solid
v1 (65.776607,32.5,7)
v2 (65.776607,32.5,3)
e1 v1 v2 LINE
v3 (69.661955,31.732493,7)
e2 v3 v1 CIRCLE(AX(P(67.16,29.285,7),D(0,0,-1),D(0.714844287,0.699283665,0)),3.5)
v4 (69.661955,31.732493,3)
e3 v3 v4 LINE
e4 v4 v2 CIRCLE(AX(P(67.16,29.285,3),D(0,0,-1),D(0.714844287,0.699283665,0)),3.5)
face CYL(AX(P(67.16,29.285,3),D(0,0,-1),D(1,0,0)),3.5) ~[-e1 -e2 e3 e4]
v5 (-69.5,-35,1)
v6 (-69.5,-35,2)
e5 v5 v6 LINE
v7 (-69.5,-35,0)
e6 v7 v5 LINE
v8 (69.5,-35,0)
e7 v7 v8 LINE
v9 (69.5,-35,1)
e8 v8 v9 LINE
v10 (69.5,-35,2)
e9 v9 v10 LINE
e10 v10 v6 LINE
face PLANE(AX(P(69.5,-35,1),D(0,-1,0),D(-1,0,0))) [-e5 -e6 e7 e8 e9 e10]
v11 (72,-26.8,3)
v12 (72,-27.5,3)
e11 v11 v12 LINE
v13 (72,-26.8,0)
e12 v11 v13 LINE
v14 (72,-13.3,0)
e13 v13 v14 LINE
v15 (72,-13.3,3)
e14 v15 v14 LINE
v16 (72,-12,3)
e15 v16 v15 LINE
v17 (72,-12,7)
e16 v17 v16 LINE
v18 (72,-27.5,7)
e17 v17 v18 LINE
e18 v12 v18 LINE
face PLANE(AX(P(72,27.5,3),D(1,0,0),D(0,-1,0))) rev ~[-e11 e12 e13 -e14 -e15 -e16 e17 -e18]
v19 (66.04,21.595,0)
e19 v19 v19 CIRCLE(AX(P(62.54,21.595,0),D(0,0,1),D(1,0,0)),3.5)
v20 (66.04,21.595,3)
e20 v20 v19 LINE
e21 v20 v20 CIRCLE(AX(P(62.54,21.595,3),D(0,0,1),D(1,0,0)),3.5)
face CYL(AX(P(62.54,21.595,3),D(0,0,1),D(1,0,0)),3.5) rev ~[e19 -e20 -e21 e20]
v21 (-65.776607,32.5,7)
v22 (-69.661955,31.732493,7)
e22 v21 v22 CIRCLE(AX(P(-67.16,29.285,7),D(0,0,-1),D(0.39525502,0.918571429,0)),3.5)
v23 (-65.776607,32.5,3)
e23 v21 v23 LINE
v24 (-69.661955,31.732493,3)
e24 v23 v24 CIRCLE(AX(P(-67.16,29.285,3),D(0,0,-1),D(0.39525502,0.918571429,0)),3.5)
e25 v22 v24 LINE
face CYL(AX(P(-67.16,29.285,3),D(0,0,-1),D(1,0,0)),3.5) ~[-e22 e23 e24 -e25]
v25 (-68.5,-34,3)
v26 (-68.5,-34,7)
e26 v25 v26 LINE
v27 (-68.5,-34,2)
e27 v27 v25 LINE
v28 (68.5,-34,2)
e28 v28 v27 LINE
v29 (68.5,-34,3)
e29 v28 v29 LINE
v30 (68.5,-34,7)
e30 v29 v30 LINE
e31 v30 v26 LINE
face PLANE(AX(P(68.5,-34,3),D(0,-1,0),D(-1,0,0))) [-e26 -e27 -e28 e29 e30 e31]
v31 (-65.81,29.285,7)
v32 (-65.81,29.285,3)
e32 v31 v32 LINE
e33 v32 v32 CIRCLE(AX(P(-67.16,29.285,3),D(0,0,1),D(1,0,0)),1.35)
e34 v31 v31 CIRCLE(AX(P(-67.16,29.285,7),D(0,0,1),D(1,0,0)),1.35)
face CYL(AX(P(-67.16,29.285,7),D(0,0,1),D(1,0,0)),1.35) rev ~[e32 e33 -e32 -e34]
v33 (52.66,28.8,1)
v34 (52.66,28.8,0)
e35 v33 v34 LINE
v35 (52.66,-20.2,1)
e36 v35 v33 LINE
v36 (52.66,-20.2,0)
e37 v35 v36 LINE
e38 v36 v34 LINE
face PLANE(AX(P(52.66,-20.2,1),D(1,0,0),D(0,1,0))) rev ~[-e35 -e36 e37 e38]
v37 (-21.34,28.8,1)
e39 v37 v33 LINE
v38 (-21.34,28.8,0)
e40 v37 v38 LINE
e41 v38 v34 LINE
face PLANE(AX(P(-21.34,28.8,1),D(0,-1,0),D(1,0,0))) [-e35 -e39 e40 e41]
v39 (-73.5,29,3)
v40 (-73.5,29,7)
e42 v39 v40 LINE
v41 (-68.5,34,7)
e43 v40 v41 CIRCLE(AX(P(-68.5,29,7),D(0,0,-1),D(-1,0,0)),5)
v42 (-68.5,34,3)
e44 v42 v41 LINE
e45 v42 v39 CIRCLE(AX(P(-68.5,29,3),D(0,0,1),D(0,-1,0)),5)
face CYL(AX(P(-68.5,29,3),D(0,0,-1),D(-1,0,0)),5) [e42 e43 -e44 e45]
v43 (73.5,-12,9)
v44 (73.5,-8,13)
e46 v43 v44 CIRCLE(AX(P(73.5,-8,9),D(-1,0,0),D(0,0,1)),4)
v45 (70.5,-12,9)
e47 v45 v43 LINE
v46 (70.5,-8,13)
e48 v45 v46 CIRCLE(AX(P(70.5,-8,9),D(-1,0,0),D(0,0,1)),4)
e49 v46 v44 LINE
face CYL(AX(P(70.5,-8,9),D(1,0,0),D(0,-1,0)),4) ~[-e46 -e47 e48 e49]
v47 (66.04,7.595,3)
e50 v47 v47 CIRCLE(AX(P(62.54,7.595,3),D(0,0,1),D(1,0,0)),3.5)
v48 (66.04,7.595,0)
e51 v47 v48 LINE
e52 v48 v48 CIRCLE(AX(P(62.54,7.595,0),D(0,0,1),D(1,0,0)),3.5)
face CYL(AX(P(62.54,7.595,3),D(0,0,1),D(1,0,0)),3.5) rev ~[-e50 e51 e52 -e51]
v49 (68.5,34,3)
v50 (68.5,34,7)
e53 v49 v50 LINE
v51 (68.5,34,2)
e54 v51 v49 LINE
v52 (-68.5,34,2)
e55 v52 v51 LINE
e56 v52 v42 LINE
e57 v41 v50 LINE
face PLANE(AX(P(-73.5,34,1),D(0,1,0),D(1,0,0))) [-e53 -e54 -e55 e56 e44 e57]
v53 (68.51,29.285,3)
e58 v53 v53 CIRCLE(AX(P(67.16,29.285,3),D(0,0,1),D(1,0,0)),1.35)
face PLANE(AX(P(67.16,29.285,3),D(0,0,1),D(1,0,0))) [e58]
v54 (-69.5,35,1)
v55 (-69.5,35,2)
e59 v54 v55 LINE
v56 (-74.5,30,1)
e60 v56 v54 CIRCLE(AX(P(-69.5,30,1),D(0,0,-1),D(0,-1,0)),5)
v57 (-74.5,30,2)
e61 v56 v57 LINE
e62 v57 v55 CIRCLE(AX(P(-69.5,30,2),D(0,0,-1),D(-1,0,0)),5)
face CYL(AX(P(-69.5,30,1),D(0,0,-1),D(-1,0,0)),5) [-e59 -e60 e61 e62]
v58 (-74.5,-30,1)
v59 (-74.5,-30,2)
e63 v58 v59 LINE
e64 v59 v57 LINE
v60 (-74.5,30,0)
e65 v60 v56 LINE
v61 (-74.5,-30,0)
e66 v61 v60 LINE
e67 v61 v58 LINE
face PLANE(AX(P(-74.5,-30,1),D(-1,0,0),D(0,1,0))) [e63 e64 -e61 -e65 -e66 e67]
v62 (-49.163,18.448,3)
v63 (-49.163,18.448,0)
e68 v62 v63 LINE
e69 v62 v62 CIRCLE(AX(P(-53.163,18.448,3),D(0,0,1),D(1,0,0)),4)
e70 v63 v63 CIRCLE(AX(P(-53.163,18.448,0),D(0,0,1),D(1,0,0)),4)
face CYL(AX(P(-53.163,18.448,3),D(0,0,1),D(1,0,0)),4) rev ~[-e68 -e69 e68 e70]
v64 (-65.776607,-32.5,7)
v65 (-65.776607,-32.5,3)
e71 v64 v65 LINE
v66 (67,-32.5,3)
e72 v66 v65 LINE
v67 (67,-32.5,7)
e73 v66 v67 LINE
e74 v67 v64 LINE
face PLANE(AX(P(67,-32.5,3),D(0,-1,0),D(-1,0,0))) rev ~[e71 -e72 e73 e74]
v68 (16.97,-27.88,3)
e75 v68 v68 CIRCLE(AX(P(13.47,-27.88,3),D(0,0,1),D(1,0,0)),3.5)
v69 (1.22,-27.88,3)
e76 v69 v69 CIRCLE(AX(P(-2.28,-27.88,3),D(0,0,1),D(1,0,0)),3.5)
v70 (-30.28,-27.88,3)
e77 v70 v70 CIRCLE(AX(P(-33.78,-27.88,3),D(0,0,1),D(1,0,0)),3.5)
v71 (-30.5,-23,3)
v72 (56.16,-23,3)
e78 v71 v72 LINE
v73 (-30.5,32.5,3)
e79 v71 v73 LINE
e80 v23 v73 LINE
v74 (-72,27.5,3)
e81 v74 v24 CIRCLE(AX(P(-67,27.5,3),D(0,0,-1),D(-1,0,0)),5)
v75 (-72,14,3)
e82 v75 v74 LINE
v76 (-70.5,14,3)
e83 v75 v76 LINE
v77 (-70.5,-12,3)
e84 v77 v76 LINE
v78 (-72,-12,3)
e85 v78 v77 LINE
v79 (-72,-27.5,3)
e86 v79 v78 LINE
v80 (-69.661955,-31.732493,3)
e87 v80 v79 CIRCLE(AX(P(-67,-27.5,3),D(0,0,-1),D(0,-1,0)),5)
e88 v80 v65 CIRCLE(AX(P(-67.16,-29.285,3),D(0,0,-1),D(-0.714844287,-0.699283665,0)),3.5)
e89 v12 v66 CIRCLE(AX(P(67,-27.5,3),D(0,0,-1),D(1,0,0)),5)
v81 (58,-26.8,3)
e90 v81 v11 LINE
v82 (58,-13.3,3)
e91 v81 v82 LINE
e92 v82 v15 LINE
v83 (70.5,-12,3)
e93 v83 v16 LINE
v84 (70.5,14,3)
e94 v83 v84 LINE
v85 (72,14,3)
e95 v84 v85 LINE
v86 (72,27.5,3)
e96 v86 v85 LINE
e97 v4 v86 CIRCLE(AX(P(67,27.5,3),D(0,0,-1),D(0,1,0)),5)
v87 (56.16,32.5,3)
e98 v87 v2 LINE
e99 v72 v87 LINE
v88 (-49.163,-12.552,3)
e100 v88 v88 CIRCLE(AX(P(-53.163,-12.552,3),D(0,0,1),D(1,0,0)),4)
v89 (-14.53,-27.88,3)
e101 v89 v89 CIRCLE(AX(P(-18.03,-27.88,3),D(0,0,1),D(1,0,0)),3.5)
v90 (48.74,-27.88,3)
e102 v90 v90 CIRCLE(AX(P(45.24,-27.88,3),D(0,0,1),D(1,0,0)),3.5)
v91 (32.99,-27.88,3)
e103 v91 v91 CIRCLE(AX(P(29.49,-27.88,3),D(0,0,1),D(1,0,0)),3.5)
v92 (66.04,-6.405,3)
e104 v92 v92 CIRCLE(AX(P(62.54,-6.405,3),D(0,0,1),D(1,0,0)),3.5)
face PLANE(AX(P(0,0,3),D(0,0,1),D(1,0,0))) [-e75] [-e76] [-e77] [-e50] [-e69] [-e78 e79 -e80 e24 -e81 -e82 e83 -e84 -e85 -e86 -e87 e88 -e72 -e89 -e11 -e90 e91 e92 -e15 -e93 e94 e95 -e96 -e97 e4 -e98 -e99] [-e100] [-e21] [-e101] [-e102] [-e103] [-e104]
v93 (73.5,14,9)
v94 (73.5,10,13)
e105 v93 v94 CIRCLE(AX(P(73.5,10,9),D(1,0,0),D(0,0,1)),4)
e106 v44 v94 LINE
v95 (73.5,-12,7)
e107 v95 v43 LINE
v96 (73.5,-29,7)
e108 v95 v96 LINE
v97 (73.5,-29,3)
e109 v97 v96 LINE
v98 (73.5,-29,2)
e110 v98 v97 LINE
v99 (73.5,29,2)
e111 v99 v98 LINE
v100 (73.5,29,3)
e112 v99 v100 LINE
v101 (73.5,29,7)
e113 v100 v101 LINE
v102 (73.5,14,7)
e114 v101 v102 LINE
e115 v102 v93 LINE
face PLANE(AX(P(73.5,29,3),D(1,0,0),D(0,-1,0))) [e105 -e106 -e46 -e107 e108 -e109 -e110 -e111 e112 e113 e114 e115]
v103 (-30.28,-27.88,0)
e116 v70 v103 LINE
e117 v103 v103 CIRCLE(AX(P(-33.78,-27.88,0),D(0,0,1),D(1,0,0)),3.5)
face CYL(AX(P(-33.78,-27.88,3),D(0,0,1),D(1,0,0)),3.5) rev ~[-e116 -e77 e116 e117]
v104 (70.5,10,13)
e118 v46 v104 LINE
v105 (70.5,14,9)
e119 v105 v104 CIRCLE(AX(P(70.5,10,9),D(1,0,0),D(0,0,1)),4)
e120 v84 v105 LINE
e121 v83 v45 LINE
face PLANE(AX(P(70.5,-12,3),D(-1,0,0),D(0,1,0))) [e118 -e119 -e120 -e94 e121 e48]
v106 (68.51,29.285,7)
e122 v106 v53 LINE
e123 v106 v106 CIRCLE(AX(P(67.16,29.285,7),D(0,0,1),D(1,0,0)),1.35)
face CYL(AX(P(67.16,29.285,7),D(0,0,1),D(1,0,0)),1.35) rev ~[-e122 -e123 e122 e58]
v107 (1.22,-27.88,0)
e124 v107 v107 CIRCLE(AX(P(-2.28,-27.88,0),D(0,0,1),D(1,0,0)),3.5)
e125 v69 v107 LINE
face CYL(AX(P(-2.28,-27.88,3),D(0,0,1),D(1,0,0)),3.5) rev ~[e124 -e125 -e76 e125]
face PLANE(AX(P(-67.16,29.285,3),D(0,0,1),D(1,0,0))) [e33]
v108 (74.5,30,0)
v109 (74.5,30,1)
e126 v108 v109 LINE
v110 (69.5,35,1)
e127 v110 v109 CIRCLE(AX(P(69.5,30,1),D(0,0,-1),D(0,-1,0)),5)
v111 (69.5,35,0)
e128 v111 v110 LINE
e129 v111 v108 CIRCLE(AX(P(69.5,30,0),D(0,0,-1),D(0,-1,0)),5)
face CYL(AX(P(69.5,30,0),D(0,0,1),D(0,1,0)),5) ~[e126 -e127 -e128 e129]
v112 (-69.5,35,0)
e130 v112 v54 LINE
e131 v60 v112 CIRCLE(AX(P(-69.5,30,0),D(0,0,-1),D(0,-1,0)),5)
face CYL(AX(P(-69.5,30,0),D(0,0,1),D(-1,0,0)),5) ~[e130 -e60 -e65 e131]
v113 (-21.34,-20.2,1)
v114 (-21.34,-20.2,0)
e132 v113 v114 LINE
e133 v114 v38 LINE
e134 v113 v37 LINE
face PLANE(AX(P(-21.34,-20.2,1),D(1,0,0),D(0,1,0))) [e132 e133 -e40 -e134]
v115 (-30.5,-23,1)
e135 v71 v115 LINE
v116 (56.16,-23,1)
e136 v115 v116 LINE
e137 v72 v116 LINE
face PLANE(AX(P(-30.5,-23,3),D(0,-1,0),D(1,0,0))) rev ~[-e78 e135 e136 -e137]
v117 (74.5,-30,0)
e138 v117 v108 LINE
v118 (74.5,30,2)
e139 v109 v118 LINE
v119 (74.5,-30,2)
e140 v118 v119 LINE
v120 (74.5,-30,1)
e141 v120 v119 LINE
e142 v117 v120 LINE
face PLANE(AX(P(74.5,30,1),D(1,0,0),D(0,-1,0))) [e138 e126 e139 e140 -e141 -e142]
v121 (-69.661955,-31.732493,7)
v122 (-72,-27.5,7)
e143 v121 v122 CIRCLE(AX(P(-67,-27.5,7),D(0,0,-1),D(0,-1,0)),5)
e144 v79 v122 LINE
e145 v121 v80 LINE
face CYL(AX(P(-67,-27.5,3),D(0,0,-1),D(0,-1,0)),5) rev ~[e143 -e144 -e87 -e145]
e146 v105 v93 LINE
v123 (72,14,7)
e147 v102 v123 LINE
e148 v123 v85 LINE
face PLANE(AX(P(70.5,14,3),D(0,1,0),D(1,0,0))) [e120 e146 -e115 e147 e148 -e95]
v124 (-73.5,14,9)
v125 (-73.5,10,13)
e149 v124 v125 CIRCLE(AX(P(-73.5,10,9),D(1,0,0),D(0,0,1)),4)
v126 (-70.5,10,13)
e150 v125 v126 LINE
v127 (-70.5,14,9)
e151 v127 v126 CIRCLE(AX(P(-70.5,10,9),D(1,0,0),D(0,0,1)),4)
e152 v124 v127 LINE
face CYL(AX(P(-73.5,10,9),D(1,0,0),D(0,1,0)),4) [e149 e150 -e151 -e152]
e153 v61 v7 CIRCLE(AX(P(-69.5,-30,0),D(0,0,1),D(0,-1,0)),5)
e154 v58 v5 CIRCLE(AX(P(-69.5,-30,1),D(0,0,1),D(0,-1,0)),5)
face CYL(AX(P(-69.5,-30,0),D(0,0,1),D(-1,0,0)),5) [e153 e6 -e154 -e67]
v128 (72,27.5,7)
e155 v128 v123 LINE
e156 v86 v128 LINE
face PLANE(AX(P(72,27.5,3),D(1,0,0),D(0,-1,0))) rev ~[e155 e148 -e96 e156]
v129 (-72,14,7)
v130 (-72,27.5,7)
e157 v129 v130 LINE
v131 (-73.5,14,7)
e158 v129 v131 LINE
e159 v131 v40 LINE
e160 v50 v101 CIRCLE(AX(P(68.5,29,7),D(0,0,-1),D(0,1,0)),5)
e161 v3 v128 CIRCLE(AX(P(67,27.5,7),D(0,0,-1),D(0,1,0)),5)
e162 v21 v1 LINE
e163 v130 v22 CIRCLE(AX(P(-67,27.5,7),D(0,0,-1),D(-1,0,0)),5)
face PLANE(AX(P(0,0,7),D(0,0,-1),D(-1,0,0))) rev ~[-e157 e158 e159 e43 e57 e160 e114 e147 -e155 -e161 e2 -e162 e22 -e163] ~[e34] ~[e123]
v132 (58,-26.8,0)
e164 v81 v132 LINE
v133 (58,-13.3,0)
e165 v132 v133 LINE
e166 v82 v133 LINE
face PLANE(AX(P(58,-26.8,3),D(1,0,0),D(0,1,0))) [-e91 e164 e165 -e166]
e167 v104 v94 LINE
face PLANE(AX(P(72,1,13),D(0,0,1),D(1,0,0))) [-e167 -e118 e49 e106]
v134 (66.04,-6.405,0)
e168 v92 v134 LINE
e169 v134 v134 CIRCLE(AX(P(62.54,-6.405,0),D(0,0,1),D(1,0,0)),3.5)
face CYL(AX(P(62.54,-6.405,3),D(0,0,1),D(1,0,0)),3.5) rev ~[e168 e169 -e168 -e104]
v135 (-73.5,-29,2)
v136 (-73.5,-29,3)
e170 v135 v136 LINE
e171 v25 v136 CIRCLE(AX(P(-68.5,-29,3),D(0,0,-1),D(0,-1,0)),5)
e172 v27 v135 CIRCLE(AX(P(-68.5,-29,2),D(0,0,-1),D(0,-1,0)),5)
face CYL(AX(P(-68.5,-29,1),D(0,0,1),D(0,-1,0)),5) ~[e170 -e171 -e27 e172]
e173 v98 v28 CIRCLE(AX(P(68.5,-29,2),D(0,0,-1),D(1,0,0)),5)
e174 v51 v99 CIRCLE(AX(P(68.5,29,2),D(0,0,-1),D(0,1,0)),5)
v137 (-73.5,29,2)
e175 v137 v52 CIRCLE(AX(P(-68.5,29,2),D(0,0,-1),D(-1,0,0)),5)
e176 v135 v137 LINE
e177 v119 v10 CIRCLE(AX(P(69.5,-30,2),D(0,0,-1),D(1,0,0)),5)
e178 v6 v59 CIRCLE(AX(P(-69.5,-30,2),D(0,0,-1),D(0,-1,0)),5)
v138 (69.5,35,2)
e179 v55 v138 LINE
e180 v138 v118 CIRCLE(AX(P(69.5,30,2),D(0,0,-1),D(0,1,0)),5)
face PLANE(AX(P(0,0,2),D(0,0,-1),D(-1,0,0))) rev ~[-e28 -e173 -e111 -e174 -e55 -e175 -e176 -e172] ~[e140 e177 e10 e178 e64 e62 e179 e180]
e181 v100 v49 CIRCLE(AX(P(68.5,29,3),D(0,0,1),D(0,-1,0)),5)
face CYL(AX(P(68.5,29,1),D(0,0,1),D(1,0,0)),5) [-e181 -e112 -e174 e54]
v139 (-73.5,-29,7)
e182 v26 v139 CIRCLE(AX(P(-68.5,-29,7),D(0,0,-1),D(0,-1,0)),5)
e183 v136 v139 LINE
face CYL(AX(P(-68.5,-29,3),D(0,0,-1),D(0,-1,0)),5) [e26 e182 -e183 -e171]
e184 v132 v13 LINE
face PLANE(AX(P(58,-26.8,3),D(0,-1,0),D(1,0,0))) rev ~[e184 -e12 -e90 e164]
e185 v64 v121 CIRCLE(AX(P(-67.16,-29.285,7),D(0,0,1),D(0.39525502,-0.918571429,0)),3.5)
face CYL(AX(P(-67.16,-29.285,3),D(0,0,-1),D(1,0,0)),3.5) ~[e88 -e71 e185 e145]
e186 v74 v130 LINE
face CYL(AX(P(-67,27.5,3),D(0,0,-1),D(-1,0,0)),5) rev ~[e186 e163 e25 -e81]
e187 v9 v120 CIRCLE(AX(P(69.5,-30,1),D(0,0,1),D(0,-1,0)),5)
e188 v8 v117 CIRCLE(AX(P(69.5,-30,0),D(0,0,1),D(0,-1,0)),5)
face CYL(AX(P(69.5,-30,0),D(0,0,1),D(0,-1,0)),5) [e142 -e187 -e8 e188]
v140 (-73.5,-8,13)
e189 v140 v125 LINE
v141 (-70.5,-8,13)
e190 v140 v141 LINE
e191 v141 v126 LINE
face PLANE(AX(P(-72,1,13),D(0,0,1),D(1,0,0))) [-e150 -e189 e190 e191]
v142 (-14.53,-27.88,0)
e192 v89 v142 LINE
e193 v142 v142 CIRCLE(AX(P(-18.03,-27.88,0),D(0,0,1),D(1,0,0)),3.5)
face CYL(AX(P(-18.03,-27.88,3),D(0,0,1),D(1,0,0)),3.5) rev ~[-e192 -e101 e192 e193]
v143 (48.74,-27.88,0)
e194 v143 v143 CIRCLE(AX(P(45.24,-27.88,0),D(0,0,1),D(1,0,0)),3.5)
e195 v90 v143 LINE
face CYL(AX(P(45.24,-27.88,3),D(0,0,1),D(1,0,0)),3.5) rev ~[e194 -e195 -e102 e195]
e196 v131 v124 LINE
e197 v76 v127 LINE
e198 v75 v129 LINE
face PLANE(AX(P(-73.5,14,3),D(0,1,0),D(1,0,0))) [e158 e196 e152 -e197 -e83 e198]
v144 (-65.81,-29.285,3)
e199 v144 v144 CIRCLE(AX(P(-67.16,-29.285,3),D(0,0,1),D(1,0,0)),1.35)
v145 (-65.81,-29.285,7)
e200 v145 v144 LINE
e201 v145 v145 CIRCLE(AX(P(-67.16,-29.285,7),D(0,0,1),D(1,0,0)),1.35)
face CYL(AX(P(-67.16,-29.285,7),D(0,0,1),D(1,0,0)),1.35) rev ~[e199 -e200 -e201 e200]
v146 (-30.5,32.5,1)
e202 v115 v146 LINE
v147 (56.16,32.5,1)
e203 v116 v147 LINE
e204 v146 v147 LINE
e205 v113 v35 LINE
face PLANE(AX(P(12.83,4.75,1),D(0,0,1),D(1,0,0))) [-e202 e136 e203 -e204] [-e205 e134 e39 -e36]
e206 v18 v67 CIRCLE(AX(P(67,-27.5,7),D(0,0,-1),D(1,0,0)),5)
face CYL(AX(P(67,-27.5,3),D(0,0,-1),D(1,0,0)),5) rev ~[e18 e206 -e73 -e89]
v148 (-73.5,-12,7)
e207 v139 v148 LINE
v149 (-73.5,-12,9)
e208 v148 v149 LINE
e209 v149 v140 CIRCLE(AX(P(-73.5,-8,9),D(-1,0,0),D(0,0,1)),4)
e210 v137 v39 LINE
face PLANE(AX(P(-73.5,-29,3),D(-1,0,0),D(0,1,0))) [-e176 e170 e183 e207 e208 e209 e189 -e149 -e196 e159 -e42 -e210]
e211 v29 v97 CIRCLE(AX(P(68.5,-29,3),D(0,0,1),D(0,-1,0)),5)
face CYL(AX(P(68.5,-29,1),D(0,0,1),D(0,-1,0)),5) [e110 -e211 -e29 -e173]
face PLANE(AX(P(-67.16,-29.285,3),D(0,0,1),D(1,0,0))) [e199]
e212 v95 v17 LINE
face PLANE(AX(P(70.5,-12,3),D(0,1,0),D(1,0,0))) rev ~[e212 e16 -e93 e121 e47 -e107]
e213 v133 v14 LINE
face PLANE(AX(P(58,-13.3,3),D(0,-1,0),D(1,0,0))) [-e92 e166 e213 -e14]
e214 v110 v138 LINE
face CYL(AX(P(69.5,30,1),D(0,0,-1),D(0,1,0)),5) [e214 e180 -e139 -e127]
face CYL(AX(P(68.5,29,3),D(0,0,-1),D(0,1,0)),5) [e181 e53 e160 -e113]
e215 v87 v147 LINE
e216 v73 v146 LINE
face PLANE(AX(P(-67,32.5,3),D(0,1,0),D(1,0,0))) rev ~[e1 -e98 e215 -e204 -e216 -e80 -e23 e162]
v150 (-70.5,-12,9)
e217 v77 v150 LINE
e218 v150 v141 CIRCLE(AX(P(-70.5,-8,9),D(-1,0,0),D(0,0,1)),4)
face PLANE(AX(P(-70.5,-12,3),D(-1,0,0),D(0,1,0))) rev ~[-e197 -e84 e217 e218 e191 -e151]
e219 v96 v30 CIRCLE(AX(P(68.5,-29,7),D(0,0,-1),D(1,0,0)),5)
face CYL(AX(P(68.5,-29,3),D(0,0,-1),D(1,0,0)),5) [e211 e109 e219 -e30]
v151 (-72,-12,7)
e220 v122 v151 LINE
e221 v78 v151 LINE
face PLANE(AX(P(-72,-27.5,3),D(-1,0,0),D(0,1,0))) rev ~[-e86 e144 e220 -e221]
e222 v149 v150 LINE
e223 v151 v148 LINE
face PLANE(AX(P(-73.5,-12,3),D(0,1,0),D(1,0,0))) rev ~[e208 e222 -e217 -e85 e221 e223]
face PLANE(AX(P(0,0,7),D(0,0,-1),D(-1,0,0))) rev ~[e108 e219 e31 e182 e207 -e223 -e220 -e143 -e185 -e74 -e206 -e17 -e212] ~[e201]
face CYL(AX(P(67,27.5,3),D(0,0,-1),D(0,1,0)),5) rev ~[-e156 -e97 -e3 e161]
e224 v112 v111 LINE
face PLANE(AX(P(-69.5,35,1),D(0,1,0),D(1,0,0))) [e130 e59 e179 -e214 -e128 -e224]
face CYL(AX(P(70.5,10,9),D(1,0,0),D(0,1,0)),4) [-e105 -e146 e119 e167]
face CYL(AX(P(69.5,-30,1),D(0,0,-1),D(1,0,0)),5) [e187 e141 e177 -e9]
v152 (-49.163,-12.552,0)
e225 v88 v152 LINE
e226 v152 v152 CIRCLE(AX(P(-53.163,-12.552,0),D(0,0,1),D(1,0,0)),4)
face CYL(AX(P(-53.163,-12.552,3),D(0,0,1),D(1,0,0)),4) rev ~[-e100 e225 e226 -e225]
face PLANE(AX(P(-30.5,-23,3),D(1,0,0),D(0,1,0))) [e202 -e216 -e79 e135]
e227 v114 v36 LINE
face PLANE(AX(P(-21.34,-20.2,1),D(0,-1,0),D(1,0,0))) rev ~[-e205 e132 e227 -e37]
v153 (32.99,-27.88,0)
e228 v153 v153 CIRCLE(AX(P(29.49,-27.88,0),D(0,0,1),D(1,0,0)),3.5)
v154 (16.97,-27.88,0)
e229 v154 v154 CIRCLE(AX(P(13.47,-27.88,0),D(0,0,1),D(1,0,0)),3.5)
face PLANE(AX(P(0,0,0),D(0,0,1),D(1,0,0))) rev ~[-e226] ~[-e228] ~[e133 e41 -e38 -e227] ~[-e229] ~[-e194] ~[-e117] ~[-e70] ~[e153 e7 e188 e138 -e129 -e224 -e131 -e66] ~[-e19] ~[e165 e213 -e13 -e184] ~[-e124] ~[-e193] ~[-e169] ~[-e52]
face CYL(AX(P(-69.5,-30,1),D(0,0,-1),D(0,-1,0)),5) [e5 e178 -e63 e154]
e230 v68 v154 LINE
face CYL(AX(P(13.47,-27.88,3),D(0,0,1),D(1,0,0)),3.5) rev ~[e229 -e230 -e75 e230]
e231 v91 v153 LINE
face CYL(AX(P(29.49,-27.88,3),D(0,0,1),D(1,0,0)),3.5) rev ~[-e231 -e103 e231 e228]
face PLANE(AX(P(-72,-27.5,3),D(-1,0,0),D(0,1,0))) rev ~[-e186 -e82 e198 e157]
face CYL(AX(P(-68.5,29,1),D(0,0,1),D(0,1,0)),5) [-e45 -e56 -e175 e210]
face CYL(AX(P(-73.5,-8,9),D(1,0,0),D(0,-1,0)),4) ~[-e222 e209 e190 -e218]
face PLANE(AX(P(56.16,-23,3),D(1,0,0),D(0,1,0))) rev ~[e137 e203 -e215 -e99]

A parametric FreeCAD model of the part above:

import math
import FreeCAD as App
import Part
import Sketcher
Q = App.Units.Quantity


def edges_at(feature, points):
    """Names of the edges that pass closest to the given points."""
    edges = feature.Shape.Edges
    near = lambda p: min(range(len(edges)), key=lambda i: edges[i].distToShape(Part.Vertex(*p))[0])
    return sorted({f"Edge{near(p) + 1}" for p in points})


def add_polygon(sketch, points):
    """Adds a closed chain of lines whose ends are joined by coincident constraints."""
    first, n = sketch.GeometryCount, len(points)
    for a, b in zip(points, points[1:] + points[:1]):
        sketch.addGeometry(Part.LineSegment(App.Vector(*a, 0), App.Vector(*b, 0)), False)
    for i in range(n):
        sketch.addConstraint(Sketcher.Constraint("Coincident", first + i, 2, first + (i + 1) % n, 1))

doc = App.newDocument("Part")
params = doc.addObject("Spreadsheet::Sheet", "Params")
for row, (alias, value) in enumerate([
    ("sketch1_width", "149 mm"),
    ("sketch1_height", "70 mm"),
    ("pad1_length", "1 mm"),
    ("sketch2_width", "147 mm"),
    ("sketch2_height", "68 mm"),
    ("pad2_length", "2 mm"),
    ("fillet_radius", "5 mm"),
    ("sketch3_width", "3 mm"),
    ("sketch3_height", "26 mm"),
    ("pad3_length", "10 mm"),
    ("fillet2_radius", "4 mm"),
    ("sketch4_diameter", "7 mm"),
    ("pad4_length", "4 mm"),
    ("sketch5_height", "55.5 mm"),
    ("sketch5_width", "86.66 mm"),
    ("pocket1_length", "2 mm"),
    ("sketch6_width", "74 mm"),
    ("sketch6_height", "49 mm"),
    ("sketch7_diameter", "8 mm"),
    ("sketch8_diameter", "2.7 mm"),
    ("pocket4_length", "4 mm"),
    ("sketch9_diameter", "2.7 mm"),
    ("pocket5_length", "4 mm"),
    ("sketch10_diameter", "2.7 mm"),
    ("pocket6_length", "4 mm"),
    ("sketch11_width", "14 mm"),
    ("sketch11_height", "13.5 mm"),
    ("sketch12_diameter", "7 mm"),
    ("sketch13_diameter", "7 mm"),
    ("sketch14_radius", "5 mm"),
    ("sketch14_width", "137 mm"),
    ("sketch14_width2", "134 mm"),
    ("sketch14_height", "58 mm"),
    ("sketch14_height2", "55 mm"),
    ("pad5_length", "4 mm"),
    ("sketch15_radius", "5 mm"),
    ("sketch15_width", "139 mm"),
    ("sketch15_width2", "137 mm"),
    ("sketch15_height", "60 mm"),
    ("sketch15_height2", "58 mm"),
    ("pad6_length", "1 mm"),
], start=1):
    params.set(f"A{row}", alias)
    params.set(f"B{row}", "=" + value)
    params.setAlias(f"B{row}", alias)

body = doc.addObject("PartDesign::Body", "Body")

# Sketch on XY plane
sketch1 = doc.addObject("Sketcher::SketchObject", "Sketch")
body.addObject(sketch1)
sketch1.AttachmentSupport = (doc.XY_Plane, [""])
sketch1.MapMode = "FlatFace"
add_polygon(sketch1, [(-74, 35), (-74, -35), (74, -35), (74, 35)])  # lines 0-3
sketch1.addConstraint([
    Sketcher.Constraint("Vertical", 0),
    Sketcher.Constraint("Horizontal", 1),
    Sketcher.Constraint("Vertical", 2),
    Sketcher.Constraint("Horizontal", 3),
    Sketcher.Constraint("Symmetric", 0, 2, 2, 2, -1, 1),
    Sketcher.Constraint("DistanceX", 1, 1, 1, 2, Q("149 mm")),
    Sketcher.Constraint("DistanceY", 0, 2, 0, 1, Q("70 mm")),
])
sketch1.setExpression("Constraints[9]", "Params.sketch1_width")
sketch1.setExpression("Constraints[10]", "Params.sketch1_height")
pad1 = doc.addObject("PartDesign::Pad", "Pad")
body.addObject(pad1)
pad1.Profile = sketch1
pad1.setExpression("Length", "Params.pad1_length")

# Sketch on XY plane
sketch2 = doc.addObject("Sketcher::SketchObject", "Sketch001")
body.addObject(sketch2)
sketch2.AttachmentSupport = (doc.XY_Plane, [""])
sketch2.MapMode = "FlatFace"
sketch2.AttachmentOffset = App.Placement(App.Vector(0, 0, 1), App.Rotation())
add_polygon(sketch2, [(-74, 34), (-74, -34), (74, -34), (74, 34)])  # lines 0-3
sketch2.addConstraint([
    Sketcher.Constraint("Vertical", 0),
    Sketcher.Constraint("Horizontal", 1),
    Sketcher.Constraint("Vertical", 2),
    Sketcher.Constraint("Horizontal", 3),
    Sketcher.Constraint("Symmetric", 0, 2, 2, 2, -1, 1),
    Sketcher.Constraint("DistanceX", 1, 1, 1, 2, Q("147 mm")),
    Sketcher.Constraint("DistanceY", 0, 2, 0, 1, Q("68 mm")),
])
sketch2.setExpression("Constraints[9]", "Params.sketch2_width")
sketch2.setExpression("Constraints[10]", "Params.sketch2_height")
pad2 = doc.addObject("PartDesign::Pad", "Pad001")
body.addObject(pad2)
pad2.Profile = sketch2
pad2.setExpression("Length", "Params.pad2_length")
doc.recompute()

fillet = doc.addObject("PartDesign::Fillet", "Fillet")
body.addObject(fillet)
fillet.Base = (pad2, edges_at(pad2, [
    (-73.5, 34, 2),
    (-73.5, -34, 2),
    (73.5, -34, 2),
    (73.5, 34, 2),
    (-74.5, 35, 0.5),
    (74.5, 35, 0.5),
    (74.5, -35, 0.5),
    (-74.5, -35, 0.5),
]))
fillet.setExpression("Radius", "Params.fillet_radius")

# Sketch on XY plane
sketch3 = doc.addObject("Sketcher::SketchObject", "Sketch002")
body.addObject(sketch3)
sketch3.AttachmentSupport = (doc.XY_Plane, [""])
sketch3.MapMode = "FlatFace"
sketch3.AttachmentOffset = App.Placement(App.Vector(0, 0, 3), App.Rotation())
add_polygon(sketch3, [(-73.5, 14), (-73.5, -12), (-70.5, -12), (-70.5, 14)])  # lines 0-3
add_polygon(sketch3, [(70.5, 14), (70.5, -12), (73.5, -12), (73.5, 14)])  # lines 4-7
sketch3.addConstraint([
    Sketcher.Constraint("Vertical", 0),
    Sketcher.Constraint("Horizontal", 1),
    Sketcher.Constraint("Vertical", 2),
    Sketcher.Constraint("Horizontal", 3),
    Sketcher.Constraint("Vertical", 4),
    Sketcher.Constraint("Horizontal", 5),
    Sketcher.Constraint("Vertical", 6),
    Sketcher.Constraint("Horizontal", 7),
    Sketcher.Constraint("Symmetric", 1, 2, 4, 2, -2),
    Sketcher.Constraint("Symmetric", 3, 2, 6, 2, -2),
    Sketcher.Constraint("DistanceX", 1, 1, 1, 2, Q("3 mm")),
    Sketcher.Constraint("DistanceY", 0, 2, 0, 1, Q("26 mm")),
    Sketcher.Constraint("DistanceY", 0, 2, -1, 1, Q("12 mm")),
    Sketcher.Constraint("DistanceX", 1, 2, 4, 2, Q("141 mm")),
])
sketch3.setExpression("Constraints[18]", "Params.sketch3_width")
sketch3.setExpression("Constraints[19]", "Params.sketch3_height")
pad3 = doc.addObject("PartDesign::Pad", "Pad002")
body.addObject(pad3)
pad3.Profile = sketch3
pad3.setExpression("Length", "Params.pad3_length")
doc.recompute()

fillet2 = doc.addObject("PartDesign::Fillet", "Fillet001")
body.addObject(fillet2)
fillet2.Base = (pad3, edges_at(pad3, [
    (-72, -12, 13),
    (-72, 14, 13),
    (72, 14, 13),
    (72, -12, 13),
]))
fillet2.setExpression("Radius", "Params.fillet2_radius")

# Sketch on XY plane
sketch4 = doc.addObject("Sketcher::SketchObject", "Sketch003")
body.addObject(sketch4)
sketch4.AttachmentSupport = (doc.XY_Plane, [""])
sketch4.MapMode = "FlatFace"
sketch4.AttachmentOffset = App.Placement(App.Vector(0, 0, 3), App.Rotation())
sketch4.addGeometry([
    Part.Circle(App.Vector(-67.2, 29.3, 0), App.Vector(0, 0, 1), 3.5),
    Part.Circle(App.Vector(67.2, 29.3, 0), App.Vector(0, 0, 1), 3.5),
    Part.Circle(App.Vector(-67.2, -29.3, 0), App.Vector(0, 0, 1), 3.5),
], False)
sketch4.addConstraint([
    Sketcher.Constraint("Equal", 0, 1),
    Sketcher.Constraint("Equal", 1, 2),
    Sketcher.Constraint("Symmetric", 1, 3, 2, 3, -1, 1),
    Sketcher.Constraint("Symmetric", 0, 3, 1, 3, -2),
    Sketcher.Constraint("Diameter", 0, Q("7 mm")),
    Sketcher.Constraint("DistanceX", 0, 3, -1, 1, Q("67.16 mm")),
    Sketcher.Constraint("DistanceY", 2, 3, 0, 3, Q("58.57 mm")),
])
sketch4.setExpression("Constraints[4]", "Params.sketch4_diameter")
pad4 = doc.addObject("PartDesign::Pad", "Pad003")
body.addObject(pad4)
pad4.Profile = sketch4
pad4.setExpression("Length", "Params.pad4_length")

# Sketch on XY plane
sketch5 = doc.addObject("Sketcher::SketchObject", "Sketch004")
body.addObject(sketch5)
sketch5.AttachmentSupport = (doc.XY_Plane, [""])
sketch5.MapMode = "FlatFace"
sketch5.AttachmentOffset = App.Placement(App.Vector(0, 0, 3), App.Rotation())
add_polygon(sketch5, [(-30, 32), (-30, -23), (56, -23), (56, 32)])  # lines 0-3
sketch5.addConstraint([
    Sketcher.Constraint("Vertical", 0),
    Sketcher.Constraint("Horizontal", 1),
    Sketcher.Constraint("Vertical", 2),
    Sketcher.Constraint("Horizontal", 3),
    Sketcher.Constraint("DistanceY", 0, 2, 0, 1, Q("55.5 mm")),
    Sketcher.Constraint("DistanceY", 0, 2, -1, 1, Q("23 mm")),
    Sketcher.Constraint("DistanceX", 1, 1, 1, 2, Q("86.66 mm")),
    Sketcher.Constraint("DistanceX", 0, 2, -1, 1, Q("30.5 mm")),
])
sketch5.setExpression("Constraints[8]", "Params.sketch5_height")
sketch5.setExpression("Constraints[10]", "Params.sketch5_width")
pocket1 = doc.addObject("PartDesign::Pocket", "Pocket")
body.addObject(pocket1)
pocket1.Profile = sketch5
pocket1.setExpression("Length", "Params.pocket1_length")

# Sketch on XY plane
sketch6 = doc.addObject("Sketcher::SketchObject", "Sketch005")
body.addObject(sketch6)
sketch6.AttachmentSupport = (doc.XY_Plane, [""])
sketch6.MapMode = "FlatFace"
sketch6.AttachmentOffset = App.Placement(App.Vector(0, 0, 1), App.Rotation())
add_polygon(sketch6, [(-21, 29), (-21, -20), (53, -20), (53, 29)])  # lines 0-3
sketch6.addConstraint([
    Sketcher.Constraint("Vertical", 0),
    Sketcher.Constraint("Horizontal", 1),
    Sketcher.Constraint("Vertical", 2),
    Sketcher.Constraint("Horizontal", 3),
    Sketcher.Constraint("DistanceX", 1, 1, 1, 2, Q("74 mm")),
    Sketcher.Constraint("DistanceY", 0, 2, 0, 1, Q("49 mm")),
    Sketcher.Constraint("DistanceY", 0, 2, -1, 1, Q("20.2 mm")),
    Sketcher.Constraint("DistanceX", 0, 2, -1, 1, Q("21.34 mm")),
])
sketch6.setExpression("Constraints[8]", "Params.sketch6_width")
sketch6.setExpression("Constraints[9]", "Params.sketch6_height")
pocket2 = doc.addObject("PartDesign::Pocket", "Pocket001")
body.addObject(pocket2)
pocket2.Profile = sketch6
pocket2.Type = "ThroughAll"

# Sketch on XY plane
sketch7 = doc.addObject("Sketcher::SketchObject", "Sketch006")
body.addObject(sketch7)
sketch7.AttachmentSupport = (doc.XY_Plane, [""])
sketch7.MapMode = "FlatFace"
sketch7.AttachmentOffset = App.Placement(App.Vector(0, 0, 3), App.Rotation())
sketch7.addGeometry([
    Part.Circle(App.Vector(-53.2, 18.4, 0), App.Vector(0, 0, 1), 4),
    Part.Circle(App.Vector(-53.2, -12.6, 0), App.Vector(0, 0, 1), 4),
], False)
sketch7.addConstraint([
    Sketcher.Constraint("Equal", 0, 1),
    Sketcher.Constraint("Vertical", 0, 3, 1, 3),
    Sketcher.Constraint("Diameter", 0, Q("8 mm")),
    Sketcher.Constraint("DistanceY", 1, 3, 0, 3, Q("31 mm")),
    Sketcher.Constraint("DistanceX", 0, 3, -1, 1, Q("53.163 mm")),
    Sketcher.Constraint("DistanceY", -1, 1, 0, 3, Q("18.448 mm")),
])
sketch7.setExpression("Constraints[2]", "Params.sketch7_diameter")
pocket3 = doc.addObject("PartDesign::Pocket", "Pocket002")
body.addObject(pocket3)
pocket3.Profile = sketch7
pocket3.Type = "ThroughAll"

# Sketch on XY plane
sketch8 = doc.addObject("Sketcher::SketchObject", "Sketch007")
body.addObject(sketch8)
sketch8.AttachmentSupport = (doc.XY_Plane, [""])
sketch8.MapMode = "FlatFace"
sketch8.AttachmentOffset = App.Placement(App.Vector(0, 0, 7), App.Rotation())
sketch8.addGeometry(Part.Circle(App.Vector(-67.2, 29.3, 0), App.Vector(0, 0, 1), 1.4), False)
sketch8.addConstraint([
    Sketcher.Constraint("Diameter", 0, Q("2.7 mm")),
    Sketcher.Constraint("DistanceX", 0, 3, -1, 1, Q("67.16 mm")),
    Sketcher.Constraint("DistanceY", -1, 1, 0, 3, Q("29.285 mm")),
])
sketch8.setExpression("Constraints[0]", "Params.sketch8_diameter")
pocket4 = doc.addObject("PartDesign::Pocket", "Pocket003")
body.addObject(pocket4)
pocket4.Profile = sketch8
pocket4.setExpression("Length", "Params.pocket4_length")

# Sketch on XY plane
sketch9 = doc.addObject("Sketcher::SketchObject", "Sketch008")
body.addObject(sketch9)
sketch9.AttachmentSupport = (doc.XY_Plane, [""])
sketch9.MapMode = "FlatFace"
sketch9.AttachmentOffset = App.Placement(App.Vector(0, 0, 7), App.Rotation())
sketch9.addGeometry(Part.Circle(App.Vector(67.2, 29.3, 0), App.Vector(0, 0, 1), 1.4), False)
sketch9.addConstraint([
    Sketcher.Constraint("Diameter", 0, Q("2.7 mm")),
    Sketcher.Constraint("DistanceX", -1, 1, 0, 3, Q("67.16 mm")),
    Sketcher.Constraint("DistanceY", -1, 1, 0, 3, Q("29.285 mm")),
])
sketch9.setExpression("Constraints[0]", "Params.sketch9_diameter")
pocket5 = doc.addObject("PartDesign::Pocket", "Pocket004")
body.addObject(pocket5)
pocket5.Profile = sketch9
pocket5.setExpression("Length", "Params.pocket5_length")

# Sketch on XY plane
sketch10 = doc.addObject("Sketcher::SketchObject", "Sketch009")
body.addObject(sketch10)
sketch10.AttachmentSupport = (doc.XY_Plane, [""])
sketch10.MapMode = "FlatFace"
sketch10.AttachmentOffset = App.Placement(App.Vector(0, 0, 7), App.Rotation())
sketch10.addGeometry(Part.Circle(App.Vector(-67.2, -29.3, 0), App.Vector(0, 0, 1), 1.4), False)
sketch10.addConstraint([
    Sketcher.Constraint("Diameter", 0, Q("2.7 mm")),
    Sketcher.Constraint("DistanceX", 0, 3, -1, 1, Q("67.16 mm")),
    Sketcher.Constraint("DistanceY", 0, 3, -1, 1, Q("29.285 mm")),
])
sketch10.setExpression("Constraints[0]", "Params.sketch10_diameter")
pocket6 = doc.addObject("PartDesign::Pocket", "Pocket005")
body.addObject(pocket6)
pocket6.Profile = sketch10
pocket6.setExpression("Length", "Params.pocket6_length")

# Sketch on XY plane
sketch11 = doc.addObject("Sketcher::SketchObject", "Sketch010")
body.addObject(sketch11)
sketch11.AttachmentSupport = (doc.XY_Plane, [""])
sketch11.MapMode = "FlatFace"
sketch11.AttachmentOffset = App.Placement(App.Vector(0, 0, 3), App.Rotation())
add_polygon(sketch11, [(58, -13), (58, -27), (72, -27), (72, -13)])  # lines 0-3
sketch11.addConstraint([
    Sketcher.Constraint("Vertical", 0),
    Sketcher.Constraint("Horizontal", 1),
    Sketcher.Constraint("Vertical", 2),
    Sketcher.Constraint("Horizontal", 3),
    Sketcher.Constraint("DistanceX", 1, 1, 1, 2, Q("14 mm")),
    Sketcher.Constraint("DistanceY", 0, 2, 0, 1, Q("13.5 mm")),
    Sketcher.Constraint("DistanceX", -1, 1, 0, 2, Q("58 mm")),
    Sketcher.Constraint("DistanceY", 0, 2, -1, 1, Q("26.8 mm")),
])
sketch11.setExpression("Constraints[8]", "Params.sketch11_width")
sketch11.setExpression("Constraints[9]", "Params.sketch11_height")
pocket7 = doc.addObject("PartDesign::Pocket", "Pocket006")
body.addObject(pocket7)
pocket7.Profile = sketch11
pocket7.Type = "ThroughAll"

# Sketch on XY plane
sketch12 = doc.addObject("Sketcher::SketchObject", "Sketch011")
body.addObject(sketch12)
sketch12.AttachmentSupport = (doc.XY_Plane, [""])
sketch12.MapMode = "FlatFace"
sketch12.AttachmentOffset = App.Placement(App.Vector(0, 0, 3), App.Rotation())
sketch12.addGeometry([
    Part.Circle(App.Vector(62.5, -6.4, 0), App.Vector(0, 0, 1), 3.5),
    Part.Circle(App.Vector(62.5, 21.6, 0), App.Vector(0, 0, 1), 3.5),
    Part.Circle(App.Vector(62.5, 7.6, 0), App.Vector(0, 0, 1), 3.5),
], False)
sketch12.addConstraint([
    Sketcher.Constraint("Equal", 0, 1),
    Sketcher.Constraint("Equal", 1, 2),
    Sketcher.Constraint("Vertical", 0, 3, 1, 3),
    Sketcher.Constraint("Vertical", 1, 3, 2, 3),
    Sketcher.Constraint("Diameter", 0, Q("7 mm")),
    Sketcher.Constraint("DistanceY", 0, 3, 1, 3, Q("28 mm")),
    Sketcher.Constraint("DistanceY", 0, 3, 2, 3, Q("14 mm")),
    Sketcher.Constraint("DistanceX", -1, 1, 0, 3, Q("62.54 mm")),
    Sketcher.Constraint("DistanceY", 0, 3, -1, 1, Q("6.405 mm")),
])
sketch12.setExpression("Constraints[4]", "Params.sketch12_diameter")
pocket8 = doc.addObject("PartDesign::Pocket", "Pocket007")
body.addObject(pocket8)
pocket8.Profile = sketch12
pocket8.Type = "ThroughAll"

# Sketch on XY plane
sketch13 = doc.addObject("Sketcher::SketchObject", "Sketch012")
body.addObject(sketch13)
sketch13.AttachmentSupport = (doc.XY_Plane, [""])
sketch13.MapMode = "FlatFace"
sketch13.AttachmentOffset = App.Placement(App.Vector(0, 0, 3), App.Rotation())
sketch13.addGeometry([
    Part.Circle(App.Vector(45.2, -27.9, 0), App.Vector(0, 0, 1), 3.5),  # 0
    Part.Circle(App.Vector(29.5, -27.9, 0), App.Vector(0, 0, 1), 3.5),  # 1
    Part.Circle(App.Vector(13.5, -27.9, 0), App.Vector(0, 0, 1), 3.5),  # 2
    Part.Circle(App.Vector(-2.3, -27.9, 0), App.Vector(0, 0, 1), 3.5),  # 3
    Part.Circle(App.Vector(-18, -27.9, 0), App.Vector(0, 0, 1), 3.5),  # 4
    Part.Circle(App.Vector(-33.8, -27.9, 0), App.Vector(0, 0, 1), 3.5),  # 5
], False)
sketch13.addConstraint([
    Sketcher.Constraint("Equal", 0, 1),
    Sketcher.Constraint("Equal", 1, 2),
    Sketcher.Constraint("Equal", 2, 3),
    Sketcher.Constraint("Equal", 3, 4),
    Sketcher.Constraint("Equal", 4, 5),
    Sketcher.Constraint("Horizontal", 0, 3, 1, 3),
    Sketcher.Constraint("Horizontal", 1, 3, 2, 3),
    Sketcher.Constraint("Horizontal", 2, 3, 3, 3),
    Sketcher.Constraint("Horizontal", 3, 3, 4, 3),
    Sketcher.Constraint("Horizontal", 4, 3, 5, 3),
    Sketcher.Constraint("Diameter", 0, Q("7 mm")),
    Sketcher.Constraint("DistanceX", 4, 3, 2, 3, Q("31.5 mm")),
    Sketcher.Constraint("DistanceX", 5, 3, 3, 3, Q("31.5 mm")),
    Sketcher.Constraint("DistanceX", -1, 1, 0, 3, Q("45.24 mm")),
    Sketcher.Constraint("DistanceY", 0, 3, -1, 1, Q("27.88 mm")),
    Sketcher.Constraint("DistanceX", -1, 1, 1, 3, Q("29.49 mm")),
    Sketcher.Constraint("DistanceX", -1, 1, 2, 3, Q("13.47 mm")),
    Sketcher.Constraint("DistanceX", 3, 3, -1, 1, Q("2.28 mm")),
])
sketch13.setExpression("Constraints[10]", "Params.sketch13_diameter")
pocket9 = doc.addObject("PartDesign::Pocket", "Pocket008")
body.addObject(pocket9)
pocket9.Profile = sketch13
pocket9.Type = "ThroughAll"

# Sketch on XY plane
sketch14 = doc.addObject("Sketcher::SketchObject", "Sketch013")
body.addObject(sketch14)
sketch14.AttachmentSupport = (doc.XY_Plane, [""])
sketch14.MapMode = "FlatFace"
sketch14.AttachmentOffset = App.Placement(App.Vector(0, 0, 3), App.Rotation())
sketch14.addGeometry([
    Part.LineSegment(App.Vector(-68, -34, 0), App.Vector(68, -34, 0)),  # 0
    Part.ArcOfCircle(Part.Circle(App.Vector(68, -29, 0), App.Vector(0, 0, 1), 5), math.radians(-90), math.radians(0)),  # 1
    Part.LineSegment(App.Vector(74, -29, 0), App.Vector(74, 29, 0)),  # 2
    Part.ArcOfCircle(Part.Circle(App.Vector(68, 29, 0), App.Vector(0, 0, 1), 5), math.radians(0), math.radians(90)),  # 3
    Part.LineSegment(App.Vector(68, 34, 0), App.Vector(-68, 34, 0)),  # 4
    Part.ArcOfCircle(Part.Circle(App.Vector(-68, 29, 0), App.Vector(0, 0, 1), 5), math.radians(90), math.radians(180)),  # 5
    Part.LineSegment(App.Vector(-74, 29, 0), App.Vector(-74, -29, 0)),  # 6
    Part.ArcOfCircle(Part.Circle(App.Vector(-68, -29, 0), App.Vector(0, 0, 1), 5), math.radians(180), math.radians(270)),  # 7
    Part.LineSegment(App.Vector(67, -32, 0), App.Vector(-67, -32, 0)),  # 8
    Part.ArcOfCircle(Part.Circle(App.Vector(-67, -28, 0), App.Vector(0, 0, 1), 5), math.radians(180), math.radians(270)),  # 9
    Part.LineSegment(App.Vector(-72, -28, 0), App.Vector(-72, 28, 0)),  # 10
    Part.ArcOfCircle(Part.Circle(App.Vector(-67, 28, 0), App.Vector(0, 0, 1), 5), math.radians(90), math.radians(180)),  # 11
    Part.LineSegment(App.Vector(-67, 32, 0), App.Vector(67, 32, 0)),  # 12
    Part.ArcOfCircle(Part.Circle(App.Vector(67, 28, 0), App.Vector(0, 0, 1), 5), math.radians(0), math.radians(90)),  # 13
    Part.LineSegment(App.Vector(72, 28, 0), App.Vector(72, -28, 0)),  # 14
    Part.ArcOfCircle(Part.Circle(App.Vector(67, -28, 0), App.Vector(0, 0, 1), 5), math.radians(-90), math.radians(0)),  # 15
], False)
sketch14.addConstraint([
    Sketcher.Constraint("Tangent", 0, 2, 1, 1),
    Sketcher.Constraint("Tangent", 1, 2, 2, 1),
    Sketcher.Constraint("Tangent", 2, 2, 3, 1),
    Sketcher.Constraint("Tangent", 3, 2, 4, 1),
    Sketcher.Constraint("Tangent", 4, 2, 5, 1),
    Sketcher.Constraint("Tangent", 5, 2, 6, 1),
    Sketcher.Constraint("Tangent", 6, 2, 7, 1),
    Sketcher.Constraint("Tangent", 7, 2, 0, 1),
    Sketcher.Constraint("Tangent", 8, 2, 9, 2),
    Sketcher.Constraint("Tangent", 9, 1, 10, 1),
    Sketcher.Constraint("Tangent", 10, 2, 11, 2),
    Sketcher.Constraint("Tangent", 11, 1, 12, 1),
    Sketcher.Constraint("Tangent", 12, 2, 13, 2),
    Sketcher.Constraint("Tangent", 13, 1, 14, 1),
    Sketcher.Constraint("Tangent", 14, 2, 15, 2),
    Sketcher.Constraint("Tangent", 15, 1, 8, 1),
    Sketcher.Constraint("Horizontal", 0),
    Sketcher.Constraint("Vertical", 2),
    Sketcher.Constraint("Horizontal", 4),
    Sketcher.Constraint("Vertical", 6),
    Sketcher.Constraint("Horizontal", 8),
    Sketcher.Constraint("Vertical", 10),
    Sketcher.Constraint("Horizontal", 12),
    Sketcher.Constraint("Vertical", 14),
    Sketcher.Constraint("Equal", 1, 3),
    Sketcher.Constraint("Equal", 3, 5),
    Sketcher.Constraint("Equal", 5, 7),
    Sketcher.Constraint("Equal", 7, 9),
    Sketcher.Constraint("Equal", 9, 11),
    Sketcher.Constraint("Equal", 11, 13),
    Sketcher.Constraint("Equal", 13, 15),
    Sketcher.Constraint("Symmetric", 1, 3, 5, 3, -1, 1),
    Sketcher.Constraint("Symmetric", 9, 3, 13, 3, -1, 1),
    Sketcher.Constraint("Radius", 1, Q("5 mm")),
    Sketcher.Constraint("DistanceX", 0, 1, 0, 2, Q("137 mm")),
    Sketcher.Constraint("DistanceX", 8, 2, 8, 1, Q("134 mm")),
    Sketcher.Constraint("DistanceY", 2, 1, 2, 2, Q("58 mm")),
    Sketcher.Constraint("DistanceY", 10, 1, 10, 2, Q("55 mm")),
])
sketch14.setExpression("Constraints[33]", "Params.sketch14_radius")
sketch14.setExpression("Constraints[34]", "Params.sketch14_width")
sketch14.setExpression("Constraints[35]", "Params.sketch14_width2")
sketch14.setExpression("Constraints[36]", "Params.sketch14_height")
sketch14.setExpression("Constraints[37]", "Params.sketch14_height2")
pad5 = doc.addObject("PartDesign::Pad", "Pad004")
body.addObject(pad5)
pad5.Profile = sketch14
pad5.setExpression("Length", "Params.pad5_length")

# Sketch on XY plane
sketch15 = doc.addObject("Sketcher::SketchObject", "Sketch014")
body.addObject(sketch15)
sketch15.AttachmentSupport = (doc.XY_Plane, [""])
sketch15.MapMode = "FlatFace"
sketch15.AttachmentOffset = App.Placement(App.Vector(0, 0, 1), App.Rotation())
sketch15.addGeometry([
    Part.LineSegment(App.Vector(-70, -35, 0), App.Vector(70, -35, 0)),  # 0
    Part.ArcOfCircle(Part.Circle(App.Vector(70, -30, 0), App.Vector(0, 0, 1), 5), math.radians(-90), math.radians(0)),  # 1
    Part.LineSegment(App.Vector(74, -30, 0), App.Vector(74, 30, 0)),  # 2
    Part.ArcOfCircle(Part.Circle(App.Vector(70, 30, 0), App.Vector(0, 0, 1), 5), math.radians(0), math.radians(90)),  # 3
    Part.LineSegment(App.Vector(70, 35, 0), App.Vector(-70, 35, 0)),  # 4
    Part.ArcOfCircle(Part.Circle(App.Vector(-70, 30, 0), App.Vector(0, 0, 1), 5), math.radians(90), math.radians(180)),  # 5
    Part.LineSegment(App.Vector(-74, 30, 0), App.Vector(-74, -30, 0)),  # 6
    Part.ArcOfCircle(Part.Circle(App.Vector(-70, -30, 0), App.Vector(0, 0, 1), 5), math.radians(180), math.radians(270)),  # 7
    Part.LineSegment(App.Vector(68, -34, 0), App.Vector(-68, -34, 0)),  # 8
    Part.ArcOfCircle(Part.Circle(App.Vector(-68, -29, 0), App.Vector(0, 0, 1), 5), math.radians(180), math.radians(270)),  # 9
    Part.LineSegment(App.Vector(-74, -29, 0), App.Vector(-74, 29, 0)),  # 10
    Part.ArcOfCircle(Part.Circle(App.Vector(-68, 29, 0), App.Vector(0, 0, 1), 5), math.radians(90), math.radians(180)),  # 11
    Part.LineSegment(App.Vector(-68, 34, 0), App.Vector(68, 34, 0)),  # 12
    Part.ArcOfCircle(Part.Circle(App.Vector(68, 29, 0), App.Vector(0, 0, 1), 5), math.radians(0), math.radians(90)),  # 13
    Part.LineSegment(App.Vector(74, 29, 0), App.Vector(74, -29, 0)),  # 14
    Part.ArcOfCircle(Part.Circle(App.Vector(68, -29, 0), App.Vector(0, 0, 1), 5), math.radians(-90), math.radians(0)),  # 15
], False)
sketch15.addConstraint([
    Sketcher.Constraint("Tangent", 0, 2, 1, 1),
    Sketcher.Constraint("Tangent", 1, 2, 2, 1),
    Sketcher.Constraint("Tangent", 2, 2, 3, 1),
    Sketcher.Constraint("Tangent", 3, 2, 4, 1),
    Sketcher.Constraint("Tangent", 4, 2, 5, 1),
    Sketcher.Constraint("Tangent", 5, 2, 6, 1),
    Sketcher.Constraint("Tangent", 6, 2, 7, 1),
    Sketcher.Constraint("Tangent", 7, 2, 0, 1),
    Sketcher.Constraint("Tangent", 8, 2, 9, 2),
    Sketcher.Constraint("Tangent", 9, 1, 10, 1),
    Sketcher.Constraint("Tangent", 10, 2, 11, 2),
    Sketcher.Constraint("Tangent", 11, 1, 12, 1),
    Sketcher.Constraint("Tangent", 12, 2, 13, 2),
    Sketcher.Constraint("Tangent", 13, 1, 14, 1),
    Sketcher.Constraint("Tangent", 14, 2, 15, 2),
    Sketcher.Constraint("Tangent", 15, 1, 8, 1),
    Sketcher.Constraint("Horizontal", 0),
    Sketcher.Constraint("Vertical", 2),
    Sketcher.Constraint("Horizontal", 4),
    Sketcher.Constraint("Vertical", 6),
    Sketcher.Constraint("Horizontal", 8),
    Sketcher.Constraint("Vertical", 10),
    Sketcher.Constraint("Horizontal", 12),
    Sketcher.Constraint("Vertical", 14),
    Sketcher.Constraint("Equal", 1, 3),
    Sketcher.Constraint("Equal", 3, 5),
    Sketcher.Constraint("Equal", 5, 7),
    Sketcher.Constraint("Equal", 7, 9),
    Sketcher.Constraint("Equal", 9, 11),
    Sketcher.Constraint("Equal", 11, 13),
    Sketcher.Constraint("Equal", 13, 15),
    Sketcher.Constraint("Symmetric", 1, 3, 5, 3, -1, 1),
    Sketcher.Constraint("Symmetric", 9, 3, 13, 3, -1, 1),
    Sketcher.Constraint("Radius", 1, Q("5 mm")),
    Sketcher.Constraint("DistanceX", 0, 1, 0, 2, Q("139 mm")),
    Sketcher.Constraint("DistanceX", 8, 2, 8, 1, Q("137 mm")),
    Sketcher.Constraint("DistanceY", 2, 1, 2, 2, Q("60 mm")),
    Sketcher.Constraint("DistanceY", 10, 1, 10, 2, Q("58 mm")),
])
sketch15.setExpression("Constraints[33]", "Params.sketch15_radius")
sketch15.setExpression("Constraints[34]", "Params.sketch15_width")
sketch15.setExpression("Constraints[35]", "Params.sketch15_width2")
sketch15.setExpression("Constraints[36]", "Params.sketch15_height")
sketch15.setExpression("Constraints[37]", "Params.sketch15_height2")
pad6 = doc.addObject("PartDesign::Pad", "Pad005")
body.addObject(pad6)
pad6.Profile = sketch15
pad6.setExpression("Length", "Params.pad6_length")

doc.recompute()
